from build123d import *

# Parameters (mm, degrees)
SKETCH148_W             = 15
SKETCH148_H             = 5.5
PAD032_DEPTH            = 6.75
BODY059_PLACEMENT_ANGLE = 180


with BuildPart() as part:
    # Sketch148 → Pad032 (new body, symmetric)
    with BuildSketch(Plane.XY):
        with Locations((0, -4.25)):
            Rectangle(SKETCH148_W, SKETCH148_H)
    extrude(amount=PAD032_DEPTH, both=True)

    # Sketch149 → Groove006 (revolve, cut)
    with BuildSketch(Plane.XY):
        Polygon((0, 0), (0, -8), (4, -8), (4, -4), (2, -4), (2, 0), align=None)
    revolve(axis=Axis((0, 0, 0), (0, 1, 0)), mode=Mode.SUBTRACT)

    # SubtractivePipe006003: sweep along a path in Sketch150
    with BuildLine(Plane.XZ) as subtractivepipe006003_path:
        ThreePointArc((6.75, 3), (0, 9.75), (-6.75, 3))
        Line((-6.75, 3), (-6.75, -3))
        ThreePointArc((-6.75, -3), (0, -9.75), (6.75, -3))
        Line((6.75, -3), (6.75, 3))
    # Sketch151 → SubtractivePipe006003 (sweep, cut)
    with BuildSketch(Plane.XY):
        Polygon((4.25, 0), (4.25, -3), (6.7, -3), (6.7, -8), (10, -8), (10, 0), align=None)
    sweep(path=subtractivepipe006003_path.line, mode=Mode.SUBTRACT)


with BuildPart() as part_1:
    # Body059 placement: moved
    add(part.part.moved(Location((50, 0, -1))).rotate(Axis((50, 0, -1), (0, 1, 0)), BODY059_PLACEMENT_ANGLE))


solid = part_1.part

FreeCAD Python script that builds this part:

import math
import FreeCAD as App
import Part
import Sketcher
from FreeCAD import Vector


def add_polygon(sketch, points):
    """Adds a closed chain of lines whose ends are joined by coincident constraints."""
    first, n = sketch.GeometryCount, len(points)
    for a, b in zip(points, points[1:] + points[:1]):
        sketch.addGeometry(Part.LineSegment(App.Vector(*a, 0), App.Vector(*b, 0)), False)
    for i in range(n):
        sketch.addConstraint(Sketcher.Constraint("Coincident", first + i, 2, first + (i + 1) % n, 1))

doc = App.newDocument("Part")
body = doc.addObject("PartDesign::Body", "Body")

# Sketch on XY plane
sketch1 = doc.addObject("Sketcher::SketchObject", "Sketch")
body.addObject(sketch1)
sketch1.AttachmentSupport = (doc.XY_Plane, [""])
sketch1.MapMode = "FlatFace"
add_polygon(sketch1, [(-8, -2), (-8, -7), (8, -7), (8, -2)])  # lines 0-3
sketch1.addConstraint([
    Sketcher.Constraint("Vertical", 0),
    Sketcher.Constraint("Horizontal", 1),
    Sketcher.Constraint("Vertical", 2),
    Sketcher.Constraint("Horizontal", 3),
    Sketcher.Constraint("DistanceX", 1, 1, 1, 2, 15.0),
    Sketcher.Constraint("DistanceY", 0, 2, 0, 1, 5.5),
    Sketcher.Constraint("DistanceY", 0, 2, -1, 1, 7.0),
    Sketcher.Constraint("DistanceX", 0, 2, -1, 1, 7.5),
])
pad1 = doc.addObject("PartDesign::Pad", "Pad")
body.addObject(pad1)
pad1.Profile = sketch1
pad1.Length = 13.5
pad1.Midplane = True

# Sketch on XY plane
sketch2 = doc.addObject("Sketcher::SketchObject", "Sketch001")
body.addObject(sketch2)
sketch2.AttachmentSupport = (doc.XY_Plane, [""])
sketch2.MapMode = "FlatFace"
add_polygon(sketch2, [(0, 0), (0, -8), (4, -8), (4, -4), (2, -4), (2, 0)])  # lines 0-5
sketch2.addConstraint([
    Sketcher.Constraint("Vertical", 0),
    Sketcher.Constraint("Horizontal", 1),
    Sketcher.Constraint("Vertical", 2),
    Sketcher.Constraint("Horizontal", 3),
    Sketcher.Constraint("Vertical", 4),
    Sketcher.Constraint("Horizontal", 5),
    Sketcher.Constraint("Coincident", 5, 2, -1, 1),
    Sketcher.Constraint("Equal", 3, 5),
    Sketcher.Constraint("Equal", 1, 2),
    Sketcher.Constraint("Equal", 2, 4),
    Sketcher.Constraint("DistanceX", 1, 1, 1, 2, 4.0),
])
groove = doc.addObject("PartDesign::Groove", "Groove")
body.addObject(groove)
groove.Profile = sketch2
groove.ReferenceAxis = (sketch2, ["V_Axis"])
groove.Angle = 360

# Sketch on XY plane
sketch3 = doc.addObject("Sketcher::SketchObject", "Sketch002")
body.addObject(sketch3)
sketch3.AttachmentSupport = (doc.XY_Plane, [""])
sketch3.MapMode = "FlatFace"
add_polygon(sketch3, [(4.2, 0), (4.2, -3), (6.7, -3), (6.7, -8), (10, -8), (10, 0)])  # lines 0-5
sketch3.addConstraint([
    Sketcher.Constraint("Vertical", 0),
    Sketcher.Constraint("Horizontal", 1),
    Sketcher.Constraint("Vertical", 2),
    Sketcher.Constraint("Horizontal", 3),
    Sketcher.Constraint("Vertical", 4),
    Sketcher.Constraint("Horizontal", 5),
    Sketcher.Constraint("PointOnObject", 4, 2, -1),
    Sketcher.Constraint("DistanceY", 0, 2, 0, 1, 3.0),
    Sketcher.Constraint("DistanceY", 2, 2, 2, 1, 5.0),
    Sketcher.Constraint("DistanceX", 3, 1, 3, 2, 3.3),
    Sketcher.Constraint("DistanceX", -1, 1, 3, 2, 10.0),
    Sketcher.Constraint("DistanceX", 1, 1, 1, 2, 2.45),
])

# Sketch on XZ plane
sketch4 = doc.addObject("Sketcher::SketchObject", "Sketch003")
body.addObject(sketch4)
sketch4.AttachmentSupport = (doc.XZ_Plane, [""])
sketch4.MapMode = "FlatFace"
sketch4.addGeometry([
    Part.ArcOfCircle(Part.Circle(Vector(0, 3, 0), Vector(0, 0, 1), 7), math.radians(0), math.radians(180)),
    Part.LineSegment(Vector(-7, 3, 0), Vector(-7, -3, 0)),
    Part.ArcOfCircle(Part.Circle(Vector(0, -3, 0), Vector(0, 0, 1), 7), math.radians(180), math.radians(360)),
    Part.LineSegment(Vector(7, -3, 0), Vector(7, 3, 0)),
], False)
sketch4.addConstraint([
    Sketcher.Constraint("Tangent", 0, 2, 1, 1),
    Sketcher.Constraint("Tangent", 1, 2, 2, 1),
    Sketcher.Constraint("Tangent", 2, 2, 3, 1),
    Sketcher.Constraint("Tangent", 3, 2, 0, 1),
    Sketcher.Constraint("Vertical", 1),
    Sketcher.Constraint("Vertical", 3),
    Sketcher.Constraint("Symmetric", 0, 3, 2, 3, -1, 1),
    Sketcher.Constraint("DistanceY", 1, 2, 1, 1, 6.0),
    Sketcher.Constraint("Radius", 0, 6.75),
])
doc.recompute()

subtractivepipe = doc.addObject("PartDesign::SubtractivePipe", "SubtractivePipe")
body.addObject(subtractivepipe)
subtractivepipe.Profile = sketch3
subtractivepipe.Spine = (sketch4, ["Edge1", "Edge2", "Edge3", "Edge4"])
body2 = doc.addObject("PartDesign::Body", "Body001")
doc.recompute()

body.Placement = App.Placement(Vector(50, 0, -1), App.Rotation(Vector(0, 1, 0), 180))
boolean = doc.addObject("PartDesign::Boolean", "Boolean")
body2.addObject(boolean)
boolean.Type = "Fuse"
boolean.addObjects([body])

doc.recompute()
